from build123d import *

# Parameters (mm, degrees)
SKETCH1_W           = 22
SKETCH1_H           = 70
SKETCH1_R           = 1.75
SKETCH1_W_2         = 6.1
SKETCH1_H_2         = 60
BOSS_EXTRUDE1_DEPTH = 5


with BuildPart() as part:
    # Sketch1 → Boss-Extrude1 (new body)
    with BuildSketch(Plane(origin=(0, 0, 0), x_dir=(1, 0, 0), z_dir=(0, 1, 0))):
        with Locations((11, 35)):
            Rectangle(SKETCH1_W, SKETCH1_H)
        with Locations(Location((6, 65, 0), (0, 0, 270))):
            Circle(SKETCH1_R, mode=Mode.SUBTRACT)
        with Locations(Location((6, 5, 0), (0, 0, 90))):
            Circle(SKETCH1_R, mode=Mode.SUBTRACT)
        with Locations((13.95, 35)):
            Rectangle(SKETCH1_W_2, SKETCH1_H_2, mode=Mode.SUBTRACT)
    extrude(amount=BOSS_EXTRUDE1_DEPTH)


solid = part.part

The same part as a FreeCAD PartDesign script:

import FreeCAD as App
import Part
import Sketcher
from FreeCAD import Vector


def add_polygon(sketch, points):
    """Adds a closed chain of lines whose ends are joined by coincident constraints."""
    first, n = sketch.GeometryCount, len(points)
    for a, b in zip(points, points[1:] + points[:1]):
        sketch.addGeometry(Part.LineSegment(App.Vector(*a, 0), App.Vector(*b, 0)), False)
    for i in range(n):
        sketch.addConstraint(Sketcher.Constraint("Coincident", first + i, 2, first + (i + 1) % n, 1))

doc = App.newDocument("Part")
body = doc.addObject("PartDesign::Body", "Body")

# Sketch on XZ plane
sketch1 = body.newObject("Sketcher::SketchObject", "Sketch")
sketch1.AttachmentSupport = (doc.getObject("XZ_Plane"), [""])
sketch1.MapMode = "FlatFace"
add_polygon(sketch1, [(0, -70), (0, 0), (22, 0), (22, -70)])  # lines 0-3
sketch1.addGeometry(Part.Circle(Vector(6, -5, 0), Vector(0, 0, 1), 1.8), False)  # 4
sketch1.addGeometry(Part.Circle(Vector(6, -65, 0), Vector(0, 0, 1), 1.8), False)  # 5
add_polygon(sketch1, [(17, -5), (10.9, -5), (10.9, -65), (17, -65)])  # lines 6-9
sketch1.addConstraint([
    Sketcher.Constraint("Vertical", 0),
    Sketcher.Constraint("Horizontal", 1),
    Sketcher.Constraint("Vertical", 2),
    Sketcher.Constraint("Horizontal", 3),
    Sketcher.Constraint("Horizontal", 6),
    Sketcher.Constraint("Vertical", 7),
    Sketcher.Constraint("Horizontal", 8),
    Sketcher.Constraint("Vertical", 9),
    Sketcher.Constraint("Coincident", 0, 2, -1, 1),
    Sketcher.Constraint("Equal", 4, 5),
    Sketcher.Constraint("Horizontal", 4, 3, 6, 2),
    Sketcher.Constraint("Horizontal", 5, 3, 7, 2),
    Sketcher.Constraint("Vertical", 4, 3, 5, 3),
    Sketcher.Constraint("Diameter", 4, 3.5),
    Sketcher.Constraint("DistanceX", 1, 1, 1, 2, 22.0),
    Sketcher.Constraint("DistanceY", 0, 1, 0, 2, 70.0),
    Sketcher.Constraint("DistanceY", 7, 2, 7, 1, 60.0),
    Sketcher.Constraint("DistanceX", 6, 2, 6, 1, 6.1),
    Sketcher.Constraint("DistanceX", -1, 1, 4, 3, 6.0),
    Sketcher.Constraint("DistanceY", 4, 3, -1, 1, 5.0),
    Sketcher.Constraint("DistanceX", -1, 1, 8, 2, 17.0),
])
pad1 = body.newObject("PartDesign::Pad", "Pad")
pad1.Profile = sketch1
pad1.Length = 5
pad1.Reversed = True

doc.recompute()
